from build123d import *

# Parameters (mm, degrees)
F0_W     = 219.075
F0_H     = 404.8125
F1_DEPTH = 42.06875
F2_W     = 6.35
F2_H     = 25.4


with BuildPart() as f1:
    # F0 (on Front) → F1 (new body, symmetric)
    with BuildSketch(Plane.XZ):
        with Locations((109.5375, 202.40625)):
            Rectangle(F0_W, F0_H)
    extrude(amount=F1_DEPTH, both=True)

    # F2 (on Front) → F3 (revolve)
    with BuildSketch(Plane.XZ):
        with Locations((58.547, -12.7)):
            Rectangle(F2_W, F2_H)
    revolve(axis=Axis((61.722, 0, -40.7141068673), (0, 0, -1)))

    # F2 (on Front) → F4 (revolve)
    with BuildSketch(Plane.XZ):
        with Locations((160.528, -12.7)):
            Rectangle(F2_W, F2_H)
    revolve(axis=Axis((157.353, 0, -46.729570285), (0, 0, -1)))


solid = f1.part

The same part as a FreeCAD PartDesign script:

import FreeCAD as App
import Part
import Sketcher
from FreeCAD import Vector
Q = App.Units.Quantity

doc = App.newDocument("Part")
params = doc.addObject("Spreadsheet::Sheet", "Params")
for row, (alias, value) in enumerate([
    ("sketch1_width", "8.625 in"),
    ("sketch1_height", "15.9375 in"),
    ("pad1_length", "3.3125 in"),
    ("sketch2_height", "1 in"),
    ("sketch2_width", "0.25 in"),
    ("revolution_angle", "360 deg"),
    ("sketch3_height", "1 in"),
    ("sketch3_width", "0.25 in"),
    ("revolution2_angle", "360 deg"),
], start=1):
    params.set(f"A{row}", alias)
    params.set(f"B{row}", "=" + value)
    params.setAlias(f"B{row}", alias)

body = doc.addObject("PartDesign::Body", "Body")

sketch1 = body.newObject("Sketcher::SketchObject", "Sketch")
sketch1.AttachmentSupport = (doc.getObject("XZ_Plane"), [""])
sketch1.MapMode = "FlatFace"
sketch1.addGeometry([
    Part.LineSegment(Vector(0, 404.8125, 0), Vector(0, 0, 0)),
    Part.LineSegment(Vector(0, 0, 0), Vector(219.075, 0, 0)),
    Part.LineSegment(Vector(219.075, 0, 0), Vector(219.075, 404.8125, 0)),
    Part.LineSegment(Vector(219.075, 404.8125, 0), Vector(0, 404.8125, 0)),
], False)
sketch1.addConstraint([
    Sketcher.Constraint("Coincident", 0, 2, 1, 1),
    Sketcher.Constraint("Coincident", 1, 2, 2, 1),
    Sketcher.Constraint("Coincident", 2, 2, 3, 1),
    Sketcher.Constraint("Coincident", 3, 2, 0, 1),
    Sketcher.Constraint("Vertical", 0),
    Sketcher.Constraint("Horizontal", 1),
    Sketcher.Constraint("Vertical", 2),
    Sketcher.Constraint("Horizontal", 3),
    Sketcher.Constraint("Coincident", 0, 2, -1, 1),
    Sketcher.Constraint("DistanceX", 1, 1, 1, 2, Q("8.625 in")),
    Sketcher.Constraint("DistanceY", 0, 2, 0, 1, Q("15.9375 in")),
])
sketch1.setExpression("Constraints[9]", "Params.sketch1_width")
sketch1.setExpression("Constraints[10]", "Params.sketch1_height")
pad1 = body.newObject("PartDesign::Pad", "Pad")
pad1.Profile = sketch1
pad1.setExpression("Length", "Params.pad1_length")
pad1.Midplane = True

sketch2 = body.newObject("Sketcher::SketchObject", "Sketch001")
sketch2.AttachmentSupport = (doc.getObject("XZ_Plane"), [""])
sketch2.MapMode = "FlatFace"
sketch2.addGeometry([
    Part.LineSegment(Vector(55.372, 0, 0), Vector(55.372, -25.4, 0)),
    Part.LineSegment(Vector(55.372, -25.4, 0), Vector(61.722, -25.4, 0)),
    Part.LineSegment(Vector(61.722, -25.4, 0), Vector(61.722, 0, 0)),
    Part.LineSegment(Vector(61.722, 0, 0), Vector(55.372, 0, 0)),
], False)
sketch2.addGeometry(Part.LineSegment(Vector(61.722, 0, 0), Vector(61.722, -25.4, 0)), True)
sketch2.addConstraint([
    Sketcher.Constraint("Coincident", 0, 2, 1, 1),
    Sketcher.Constraint("Coincident", 1, 2, 2, 1),
    Sketcher.Constraint("Coincident", 2, 2, 3, 1),
    Sketcher.Constraint("Coincident", 3, 2, 0, 1),
    Sketcher.Constraint("Vertical", 0),
    Sketcher.Constraint("Horizontal", 1),
    Sketcher.Constraint("Vertical", 2),
    Sketcher.Constraint("Horizontal", 3),
    Sketcher.Constraint("Vertical", 4),
    Sketcher.Constraint("Coincident", 4, 1, 2, 2),
    Sketcher.Constraint("PointOnObject", 2, 2, -1),
    Sketcher.Constraint("Horizontal", 0, 2, 4, 2),
    Sketcher.Constraint("DistanceY", 0, 2, 0, 1, Q("1 in")),
    Sketcher.Constraint("DistanceX", 1, 1, 1, 2, Q("0.25 in")),
    Sketcher.Constraint("DistanceX", -1, 1, 0, 2, Q("2.18 in")),
])
sketch2.setExpression("Constraints[12]", "Params.sketch2_height")
sketch2.setExpression("Constraints[13]", "Params.sketch2_width")
revolution = body.newObject("PartDesign::Revolution", "Revolution")
revolution.Profile = sketch2
revolution.ReferenceAxis = (sketch2, ["Axis0"])
revolution.setExpression("Angle", "Params.revolution_angle")

sketch3 = body.newObject("Sketcher::SketchObject", "Sketch002")
sketch3.AttachmentSupport = (doc.getObject("XZ_Plane"), [""])
sketch3.MapMode = "FlatFace"
sketch3.addGeometry([
    Part.LineSegment(Vector(157.353, 0, 0), Vector(157.353, -25.4, 0)),
    Part.LineSegment(Vector(157.353, -25.4, 0), Vector(163.703, -25.4, 0)),
    Part.LineSegment(Vector(163.703, -25.4, 0), Vector(163.703, 0, 0)),
    Part.LineSegment(Vector(163.703, 0, 0), Vector(157.353, 0, 0)),
], False)
sketch3.addGeometry(Part.LineSegment(Vector(157.353, 0, 0), Vector(157.353, -25.4, 0)), True)
sketch3.addConstraint([
    Sketcher.Constraint("Coincident", 0, 2, 1, 1),
    Sketcher.Constraint("Coincident", 1, 2, 2, 1),
    Sketcher.Constraint("Coincident", 2, 2, 3, 1),
    Sketcher.Constraint("Coincident", 3, 2, 0, 1),
    Sketcher.Constraint("Vertical", 0),
    Sketcher.Constraint("Horizontal", 1),
    Sketcher.Constraint("Vertical", 2),
    Sketcher.Constraint("Horizontal", 3),
    Sketcher.Constraint("Vertical", 4),
    Sketcher.Constraint("Coincident", 4, 1, 3, 2),
    Sketcher.Constraint("PointOnObject", 2, 2, -1),
    Sketcher.Constraint("Horizontal", 1, 2, 4, 2),
    Sketcher.Constraint("DistanceY", 0, 2, 0, 1, Q("1 in")),
    Sketcher.Constraint("DistanceX", 1, 1, 1, 2, Q("0.25 in")),
    Sketcher.Constraint("DistanceX", -1, 1, 0, 2, Q("6.195 in")),
])
sketch3.setExpression("Constraints[12]", "Params.sketch3_height")
sketch3.setExpression("Constraints[13]", "Params.sketch3_width")
revolution2 = body.newObject("PartDesign::Revolution", "Revolution001")
revolution2.Profile = sketch3
revolution2.ReferenceAxis = (sketch3, ["Axis0"])
revolution2.setExpression("Angle", "Params.revolution2_angle")

doc.recompute()
